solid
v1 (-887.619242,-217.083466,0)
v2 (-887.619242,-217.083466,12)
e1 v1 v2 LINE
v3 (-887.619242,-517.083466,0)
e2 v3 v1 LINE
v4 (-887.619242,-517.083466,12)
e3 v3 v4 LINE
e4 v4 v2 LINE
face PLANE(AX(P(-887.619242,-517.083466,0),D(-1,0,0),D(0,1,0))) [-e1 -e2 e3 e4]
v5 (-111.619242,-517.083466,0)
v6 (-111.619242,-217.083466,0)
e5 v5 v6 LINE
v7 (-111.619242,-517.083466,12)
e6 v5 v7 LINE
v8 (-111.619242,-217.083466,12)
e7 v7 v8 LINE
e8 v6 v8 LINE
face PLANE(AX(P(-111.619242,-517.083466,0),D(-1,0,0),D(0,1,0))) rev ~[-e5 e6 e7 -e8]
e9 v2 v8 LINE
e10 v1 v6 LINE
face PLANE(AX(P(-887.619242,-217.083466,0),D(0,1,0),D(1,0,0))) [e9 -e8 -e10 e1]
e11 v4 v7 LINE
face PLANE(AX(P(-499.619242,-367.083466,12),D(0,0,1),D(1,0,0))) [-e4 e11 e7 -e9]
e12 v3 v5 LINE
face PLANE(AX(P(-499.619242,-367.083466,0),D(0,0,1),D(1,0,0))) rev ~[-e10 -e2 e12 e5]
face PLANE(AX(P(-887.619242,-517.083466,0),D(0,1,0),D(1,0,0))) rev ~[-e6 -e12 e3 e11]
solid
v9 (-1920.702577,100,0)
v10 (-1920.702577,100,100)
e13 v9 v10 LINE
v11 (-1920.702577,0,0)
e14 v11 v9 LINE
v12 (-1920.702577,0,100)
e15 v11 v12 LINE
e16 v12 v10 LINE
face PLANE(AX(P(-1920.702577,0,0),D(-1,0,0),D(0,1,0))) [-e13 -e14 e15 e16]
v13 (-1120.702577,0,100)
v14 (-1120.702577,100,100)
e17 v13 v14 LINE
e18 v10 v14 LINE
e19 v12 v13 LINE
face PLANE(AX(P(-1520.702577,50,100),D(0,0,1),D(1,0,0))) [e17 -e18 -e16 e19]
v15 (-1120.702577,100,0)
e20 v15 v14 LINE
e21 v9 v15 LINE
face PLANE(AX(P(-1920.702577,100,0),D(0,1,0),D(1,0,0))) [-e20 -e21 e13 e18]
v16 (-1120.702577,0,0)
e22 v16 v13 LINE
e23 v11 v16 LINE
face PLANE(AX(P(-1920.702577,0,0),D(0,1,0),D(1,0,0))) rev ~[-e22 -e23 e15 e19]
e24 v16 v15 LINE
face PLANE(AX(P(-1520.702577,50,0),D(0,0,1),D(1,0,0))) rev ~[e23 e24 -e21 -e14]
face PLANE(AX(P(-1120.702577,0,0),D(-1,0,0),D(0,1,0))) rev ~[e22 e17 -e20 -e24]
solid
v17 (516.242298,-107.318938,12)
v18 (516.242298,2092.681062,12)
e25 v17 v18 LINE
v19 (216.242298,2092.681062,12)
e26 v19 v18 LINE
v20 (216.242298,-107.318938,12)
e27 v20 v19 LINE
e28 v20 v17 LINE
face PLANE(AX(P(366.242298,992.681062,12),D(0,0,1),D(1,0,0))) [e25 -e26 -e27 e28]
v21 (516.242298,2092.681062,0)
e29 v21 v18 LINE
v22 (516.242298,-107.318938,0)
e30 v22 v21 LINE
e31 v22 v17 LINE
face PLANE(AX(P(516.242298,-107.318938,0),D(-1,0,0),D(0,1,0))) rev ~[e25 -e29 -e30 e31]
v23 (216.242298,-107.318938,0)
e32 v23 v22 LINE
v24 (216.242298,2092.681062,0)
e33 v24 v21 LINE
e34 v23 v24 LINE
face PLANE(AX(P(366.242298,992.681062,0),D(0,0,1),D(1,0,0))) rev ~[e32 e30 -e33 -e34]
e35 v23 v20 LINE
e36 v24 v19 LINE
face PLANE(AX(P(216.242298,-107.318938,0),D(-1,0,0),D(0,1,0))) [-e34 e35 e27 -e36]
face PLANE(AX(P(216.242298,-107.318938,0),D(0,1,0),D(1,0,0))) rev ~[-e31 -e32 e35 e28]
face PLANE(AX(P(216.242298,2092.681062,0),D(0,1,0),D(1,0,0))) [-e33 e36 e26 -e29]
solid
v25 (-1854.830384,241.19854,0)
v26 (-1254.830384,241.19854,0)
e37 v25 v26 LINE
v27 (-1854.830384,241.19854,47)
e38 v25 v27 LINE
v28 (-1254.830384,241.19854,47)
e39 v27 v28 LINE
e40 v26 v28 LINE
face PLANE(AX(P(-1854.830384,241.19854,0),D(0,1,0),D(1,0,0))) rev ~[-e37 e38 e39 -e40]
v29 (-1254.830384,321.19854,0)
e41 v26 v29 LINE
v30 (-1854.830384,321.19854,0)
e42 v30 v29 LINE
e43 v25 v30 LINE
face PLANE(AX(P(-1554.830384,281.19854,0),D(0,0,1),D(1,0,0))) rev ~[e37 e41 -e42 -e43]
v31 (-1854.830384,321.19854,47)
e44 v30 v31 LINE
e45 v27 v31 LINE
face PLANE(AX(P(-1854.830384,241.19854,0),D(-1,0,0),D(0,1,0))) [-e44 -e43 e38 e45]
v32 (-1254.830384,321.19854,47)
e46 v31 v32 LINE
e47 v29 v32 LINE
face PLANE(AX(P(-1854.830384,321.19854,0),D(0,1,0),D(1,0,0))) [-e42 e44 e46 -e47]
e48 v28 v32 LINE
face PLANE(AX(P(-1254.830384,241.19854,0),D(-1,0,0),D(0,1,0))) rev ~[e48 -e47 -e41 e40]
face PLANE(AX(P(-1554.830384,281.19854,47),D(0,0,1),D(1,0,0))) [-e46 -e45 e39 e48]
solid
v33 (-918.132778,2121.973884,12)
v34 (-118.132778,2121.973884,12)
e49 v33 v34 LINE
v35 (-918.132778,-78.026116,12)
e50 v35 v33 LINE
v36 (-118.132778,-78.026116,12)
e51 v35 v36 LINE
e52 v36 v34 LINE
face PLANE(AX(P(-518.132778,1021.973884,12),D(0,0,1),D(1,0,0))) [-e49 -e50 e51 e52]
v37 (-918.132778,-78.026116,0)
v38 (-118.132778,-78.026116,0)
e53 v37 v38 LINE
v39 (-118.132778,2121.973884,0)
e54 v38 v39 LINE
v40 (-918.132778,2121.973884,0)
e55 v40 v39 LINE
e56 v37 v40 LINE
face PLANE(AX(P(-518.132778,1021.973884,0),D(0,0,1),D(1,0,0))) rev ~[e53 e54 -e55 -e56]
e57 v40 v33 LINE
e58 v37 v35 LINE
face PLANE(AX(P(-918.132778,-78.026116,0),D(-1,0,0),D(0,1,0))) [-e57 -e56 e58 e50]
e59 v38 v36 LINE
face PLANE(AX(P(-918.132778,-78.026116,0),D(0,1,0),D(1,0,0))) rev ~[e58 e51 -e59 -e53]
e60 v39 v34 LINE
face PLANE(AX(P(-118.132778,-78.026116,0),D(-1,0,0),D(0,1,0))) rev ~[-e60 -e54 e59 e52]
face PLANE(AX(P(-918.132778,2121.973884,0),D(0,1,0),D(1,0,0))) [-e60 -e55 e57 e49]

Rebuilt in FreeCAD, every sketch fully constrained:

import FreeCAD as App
import Part
import Sketcher


def add_polygon(sketch, points):
    """Adds a closed chain of lines whose ends are joined by coincident constraints."""
    first, n = sketch.GeometryCount, len(points)
    for a, b in zip(points, points[1:] + points[:1]):
        sketch.addGeometry(Part.LineSegment(App.Vector(*a, 0), App.Vector(*b, 0)), False)
    for i in range(n):
        sketch.addConstraint(Sketcher.Constraint("Coincident", first + i, 2, first + (i + 1) % n, 1))

doc = App.newDocument("Part")
body = doc.addObject("PartDesign::Body", "Body")

sketch1 = body.newObject("Sketcher::SketchObject", "Sketch")
sketch1.AttachmentSupport = (doc.getObject("XY_Plane"), [""])
sketch1.MapMode = "FlatFace"
add_polygon(sketch1, [(-918, 2122), (-918, -78), (-118, -78), (-118, 2122)])
sketch1.addConstraint(Sketcher.Constraint("Vertical", 0))
sketch1.addConstraint(Sketcher.Constraint("Horizontal", 1))
sketch1.addConstraint(Sketcher.Constraint("Vertical", 2))
sketch1.addConstraint(Sketcher.Constraint("Horizontal", 3))
sketch1.addConstraint(Sketcher.Constraint("DistanceX", 1, 1, 1, 2, 800.0))
sketch1.addConstraint(Sketcher.Constraint("DistanceY", 0, 2, 0, 1, 2200.0))
sketch1.addConstraint(Sketcher.Constraint("DistanceX", 0, 2, -1, 1, 918.132778))
sketch1.addConstraint(Sketcher.Constraint("DistanceY", 0, 2, -1, 1, 78.026116))
pad1 = body.newObject("PartDesign::Pad", "Pad")
pad1.Profile = sketch1
pad1.Length = 12
body2 = doc.addObject("PartDesign::Body", "Body001")

sketch2 = body2.newObject("Sketcher::SketchObject", "Sketch001")
sketch2.AttachmentSupport = (doc.getObject("XY_Plane001"), [""])
sketch2.MapMode = "FlatFace"
add_polygon(sketch2, [(216, 2093), (216, -107), (516, -107), (516, 2093)])
sketch2.addConstraint(Sketcher.Constraint("Vertical", 0))
sketch2.addConstraint(Sketcher.Constraint("Horizontal", 1))
sketch2.addConstraint(Sketcher.Constraint("Vertical", 2))
sketch2.addConstraint(Sketcher.Constraint("Horizontal", 3))
sketch2.addConstraint(Sketcher.Constraint("DistanceX", 1, 1, 1, 2, 300.0))
sketch2.addConstraint(Sketcher.Constraint("DistanceY", 0, 2, 0, 1, 2200.0))
sketch2.addConstraint(Sketcher.Constraint("DistanceX", -1, 1, 0, 2, 216.242298))
sketch2.addConstraint(Sketcher.Constraint("DistanceY", 0, 2, -1, 1, 107.318938))
pad2 = body2.newObject("PartDesign::Pad", "Pad001")
pad2.Profile = sketch2
pad2.Length = 12
body3 = doc.addObject("PartDesign::Body", "Body002")

sketch3 = body3.newObject("Sketcher::SketchObject", "Sketch002")
sketch3.AttachmentSupport = (doc.getObject("XY_Plane002"), [""])
sketch3.MapMode = "FlatFace"
add_polygon(sketch3, [(-888, -217), (-888, -517), (-112, -517), (-112, -217)])
sketch3.addConstraint(Sketcher.Constraint("Vertical", 0))
sketch3.addConstraint(Sketcher.Constraint("Horizontal", 1))
sketch3.addConstraint(Sketcher.Constraint("Vertical", 2))
sketch3.addConstraint(Sketcher.Constraint("Horizontal", 3))
sketch3.addConstraint(Sketcher.Constraint("DistanceX", 1, 1, 1, 2, 776.0))
sketch3.addConstraint(Sketcher.Constraint("DistanceY", 0, 2, 0, 1, 300.0))
sketch3.addConstraint(Sketcher.Constraint("DistanceX", 0, 2, -1, 1, 887.619242))
sketch3.addConstraint(Sketcher.Constraint("DistanceY", 0, 2, -1, 1, 517.083466))
pad3 = body3.newObject("PartDesign::Pad", "Pad002")
pad3.Profile = sketch3
pad3.Length = 12
body4 = doc.addObject("PartDesign::Body", "Body003")

sketch4 = body4.newObject("Sketcher::SketchObject", "Sketch003")
sketch4.AttachmentSupport = (doc.getObject("XY_Plane003"), [""])
sketch4.MapMode = "FlatFace"
add_polygon(sketch4, [(-1921, 100), (-1921, 0), (-1121, 0), (-1121, 100)])
sketch4.addConstraint(Sketcher.Constraint("Vertical", 0))
sketch4.addConstraint(Sketcher.Constraint("Horizontal", 1))
sketch4.addConstraint(Sketcher.Constraint("Vertical", 2))
sketch4.addConstraint(Sketcher.Constraint("Horizontal", 3))
sketch4.addConstraint(Sketcher.Constraint("PointOnObject", 0, 2, -1))
sketch4.addConstraint(Sketcher.Constraint("DistanceX", 1, 1, 1, 2, 800.0))
sketch4.addConstraint(Sketcher.Constraint("DistanceY", 0, 2, 0, 1, 100.0))
sketch4.addConstraint(Sketcher.Constraint("DistanceX", 0, 2, -1, 1, 1920.702577))
pad4 = body4.newObject("PartDesign::Pad", "Pad003")
pad4.Profile = sketch4
pad4.Length = 100
body5 = doc.addObject("PartDesign::Body", "Body004")

sketch5 = body5.newObject("Sketcher::SketchObject", "Sketch004")
sketch5.AttachmentSupport = (doc.getObject("XY_Plane004"), [""])
sketch5.MapMode = "FlatFace"
add_polygon(sketch5, [(-1855, 321), (-1855, 241), (-1255, 241), (-1255, 321)])
sketch5.addConstraint(Sketcher.Constraint("Vertical", 0))
sketch5.addConstraint(Sketcher.Constraint("Horizontal", 1))
sketch5.addConstraint(Sketcher.Constraint("Vertical", 2))
sketch5.addConstraint(Sketcher.Constraint("Horizontal", 3))
sketch5.addConstraint(Sketcher.Constraint("DistanceX", 1, 1, 1, 2, 600.0))
sketch5.addConstraint(Sketcher.Constraint("DistanceY", 0, 2, 0, 1, 80.0))
sketch5.addConstraint(Sketcher.Constraint("DistanceY", -1, 1, 0, 2, 241.19854))
sketch5.addConstraint(Sketcher.Constraint("DistanceX", 0, 2, -1, 1, 1854.830384))
pad5 = body5.newObject("PartDesign::Pad", "Pad004")
pad5.Profile = sketch5
pad5.Length = 47

doc.recompute()
